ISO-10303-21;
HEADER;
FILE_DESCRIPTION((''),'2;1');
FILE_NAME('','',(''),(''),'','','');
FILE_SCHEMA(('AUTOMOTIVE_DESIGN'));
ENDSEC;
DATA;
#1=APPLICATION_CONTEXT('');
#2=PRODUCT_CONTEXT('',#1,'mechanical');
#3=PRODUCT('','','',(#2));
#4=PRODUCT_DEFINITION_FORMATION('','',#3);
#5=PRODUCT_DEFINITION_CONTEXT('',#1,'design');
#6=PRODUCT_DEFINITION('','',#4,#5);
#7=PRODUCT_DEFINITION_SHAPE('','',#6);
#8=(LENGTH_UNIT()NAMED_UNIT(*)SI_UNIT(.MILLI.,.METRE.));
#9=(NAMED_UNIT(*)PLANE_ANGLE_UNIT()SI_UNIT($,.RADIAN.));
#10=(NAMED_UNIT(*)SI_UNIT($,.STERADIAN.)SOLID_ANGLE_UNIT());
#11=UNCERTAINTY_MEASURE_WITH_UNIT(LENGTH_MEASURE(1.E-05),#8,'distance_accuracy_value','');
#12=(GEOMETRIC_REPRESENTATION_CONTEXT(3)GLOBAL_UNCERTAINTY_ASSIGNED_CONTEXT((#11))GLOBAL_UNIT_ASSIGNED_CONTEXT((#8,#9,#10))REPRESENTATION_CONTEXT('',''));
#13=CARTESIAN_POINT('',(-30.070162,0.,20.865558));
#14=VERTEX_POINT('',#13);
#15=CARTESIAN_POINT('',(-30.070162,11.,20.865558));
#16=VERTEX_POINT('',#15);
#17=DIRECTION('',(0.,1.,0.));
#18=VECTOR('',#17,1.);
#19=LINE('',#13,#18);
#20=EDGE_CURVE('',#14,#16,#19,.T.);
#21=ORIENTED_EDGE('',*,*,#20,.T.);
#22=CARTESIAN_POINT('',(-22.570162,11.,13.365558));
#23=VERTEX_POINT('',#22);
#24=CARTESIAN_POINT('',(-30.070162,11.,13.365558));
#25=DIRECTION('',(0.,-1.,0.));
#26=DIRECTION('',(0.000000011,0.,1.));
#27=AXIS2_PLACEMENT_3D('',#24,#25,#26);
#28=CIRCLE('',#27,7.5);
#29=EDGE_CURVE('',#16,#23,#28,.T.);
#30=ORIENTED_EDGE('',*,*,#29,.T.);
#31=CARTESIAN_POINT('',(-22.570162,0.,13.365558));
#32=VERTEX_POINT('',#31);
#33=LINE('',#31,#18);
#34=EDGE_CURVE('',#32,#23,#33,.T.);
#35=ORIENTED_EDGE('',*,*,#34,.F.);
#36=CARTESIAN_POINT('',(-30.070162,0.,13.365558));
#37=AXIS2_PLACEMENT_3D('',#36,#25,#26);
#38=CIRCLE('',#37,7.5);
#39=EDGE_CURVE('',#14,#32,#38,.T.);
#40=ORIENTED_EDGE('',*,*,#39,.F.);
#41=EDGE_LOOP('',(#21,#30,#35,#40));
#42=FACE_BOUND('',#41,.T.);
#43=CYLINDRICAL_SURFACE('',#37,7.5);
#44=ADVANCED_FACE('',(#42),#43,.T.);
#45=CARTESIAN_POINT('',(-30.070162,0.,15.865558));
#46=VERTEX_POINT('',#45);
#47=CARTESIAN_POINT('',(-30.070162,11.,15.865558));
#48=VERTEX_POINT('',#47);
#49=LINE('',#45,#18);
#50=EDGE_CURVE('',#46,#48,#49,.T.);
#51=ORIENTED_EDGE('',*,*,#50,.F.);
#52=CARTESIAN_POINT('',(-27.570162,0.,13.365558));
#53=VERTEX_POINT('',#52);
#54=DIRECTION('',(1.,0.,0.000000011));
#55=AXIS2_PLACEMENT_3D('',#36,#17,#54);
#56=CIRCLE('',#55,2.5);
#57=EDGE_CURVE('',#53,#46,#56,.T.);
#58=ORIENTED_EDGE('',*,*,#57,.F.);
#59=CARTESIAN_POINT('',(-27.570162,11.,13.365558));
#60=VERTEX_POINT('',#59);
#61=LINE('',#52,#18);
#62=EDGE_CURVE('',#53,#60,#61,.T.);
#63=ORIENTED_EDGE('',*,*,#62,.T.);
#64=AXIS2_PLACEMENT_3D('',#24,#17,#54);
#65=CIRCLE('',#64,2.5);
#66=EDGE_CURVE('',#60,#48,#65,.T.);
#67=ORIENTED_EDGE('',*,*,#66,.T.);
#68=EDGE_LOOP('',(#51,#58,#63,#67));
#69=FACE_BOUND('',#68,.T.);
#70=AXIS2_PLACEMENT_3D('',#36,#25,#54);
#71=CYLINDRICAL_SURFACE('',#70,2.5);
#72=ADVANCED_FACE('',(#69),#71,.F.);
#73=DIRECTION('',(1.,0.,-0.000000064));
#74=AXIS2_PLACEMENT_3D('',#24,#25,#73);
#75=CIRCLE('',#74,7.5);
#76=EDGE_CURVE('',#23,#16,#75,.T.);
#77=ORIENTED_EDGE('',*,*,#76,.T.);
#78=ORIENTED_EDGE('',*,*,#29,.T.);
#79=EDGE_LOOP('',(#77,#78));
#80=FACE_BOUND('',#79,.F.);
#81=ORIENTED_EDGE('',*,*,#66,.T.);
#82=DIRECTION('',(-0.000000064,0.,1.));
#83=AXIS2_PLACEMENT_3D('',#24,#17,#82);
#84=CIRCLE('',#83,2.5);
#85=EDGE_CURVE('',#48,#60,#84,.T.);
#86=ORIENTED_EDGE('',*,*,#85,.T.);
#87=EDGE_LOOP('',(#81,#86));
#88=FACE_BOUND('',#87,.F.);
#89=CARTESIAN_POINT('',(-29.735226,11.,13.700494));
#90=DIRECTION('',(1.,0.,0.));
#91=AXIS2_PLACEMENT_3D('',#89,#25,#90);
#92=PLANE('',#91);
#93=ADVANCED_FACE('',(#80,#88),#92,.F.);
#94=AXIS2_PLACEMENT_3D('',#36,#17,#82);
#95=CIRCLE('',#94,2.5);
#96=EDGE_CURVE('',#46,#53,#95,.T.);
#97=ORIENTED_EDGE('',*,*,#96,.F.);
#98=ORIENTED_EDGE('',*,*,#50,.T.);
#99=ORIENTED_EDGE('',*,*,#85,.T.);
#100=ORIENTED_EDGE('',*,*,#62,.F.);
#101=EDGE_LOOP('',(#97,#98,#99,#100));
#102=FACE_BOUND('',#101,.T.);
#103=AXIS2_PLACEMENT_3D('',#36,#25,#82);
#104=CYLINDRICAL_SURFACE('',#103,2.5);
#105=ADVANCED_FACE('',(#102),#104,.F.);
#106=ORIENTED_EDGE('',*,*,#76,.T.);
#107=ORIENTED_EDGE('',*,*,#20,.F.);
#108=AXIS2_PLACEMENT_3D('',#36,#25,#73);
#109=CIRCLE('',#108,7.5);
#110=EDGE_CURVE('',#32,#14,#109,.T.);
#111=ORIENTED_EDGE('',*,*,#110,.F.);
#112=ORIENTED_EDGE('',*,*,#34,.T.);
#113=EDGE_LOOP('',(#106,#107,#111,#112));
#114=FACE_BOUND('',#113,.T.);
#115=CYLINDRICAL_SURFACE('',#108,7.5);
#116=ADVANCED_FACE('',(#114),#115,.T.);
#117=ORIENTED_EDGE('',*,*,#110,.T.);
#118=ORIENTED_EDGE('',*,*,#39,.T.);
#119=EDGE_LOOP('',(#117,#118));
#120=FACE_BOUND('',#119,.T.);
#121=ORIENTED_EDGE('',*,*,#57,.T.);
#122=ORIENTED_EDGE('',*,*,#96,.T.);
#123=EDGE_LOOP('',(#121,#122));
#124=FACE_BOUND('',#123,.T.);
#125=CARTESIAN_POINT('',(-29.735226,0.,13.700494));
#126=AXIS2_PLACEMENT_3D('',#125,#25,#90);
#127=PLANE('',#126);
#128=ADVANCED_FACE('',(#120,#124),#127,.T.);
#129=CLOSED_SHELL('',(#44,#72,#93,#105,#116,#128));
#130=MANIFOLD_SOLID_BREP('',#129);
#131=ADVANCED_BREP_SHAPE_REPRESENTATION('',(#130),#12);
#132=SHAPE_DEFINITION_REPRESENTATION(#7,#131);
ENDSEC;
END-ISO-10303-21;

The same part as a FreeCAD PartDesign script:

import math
import FreeCAD as App
import Part
import Sketcher
Q = App.Units.Quantity

doc = App.newDocument("Part")
body = doc.addObject("PartDesign::Body", "Body")

sketch1 = doc.addObject("Sketcher::SketchObject", "Sketch")
body.addObject(sketch1)
sketch1.AttachmentSupport = (doc.XZ_Plane, [""])
sketch1.MapMode = "FlatFace"
sketch1.addGeometry(Part.ArcOfCircle(Part.Circle(App.Vector(-30, 125, 0), App.Vector(0, 0, 1), 79), math.radians(-98.07), math.radians(-90)), False)
sketch1.addGeometry(Part.ArcOfCircle(Part.Circle(App.Vector(-30, 13, 0), App.Vector(0, 0, 1), 36), math.radians(108), math.radians(432)), False)
sketch1.addGeometry(Part.ArcOfCircle(Part.Circle(App.Vector(-30, 125, 0), App.Vector(0, 0, 1), 79), math.radians(-90), math.radians(-81.93)), False)
sketch1.addGeometry(Part.ArcOfCircle(Part.Circle(App.Vector(-30, 13, 0), App.Vector(0, 0, 1), 7), math.radians(0), math.radians(90)), False)
sketch1.addGeometry(Part.ArcOfCircle(Part.Circle(App.Vector(-30, 13, 0), App.Vector(0, 0, 1), 8), math.radians(90), math.radians(360)), False)
sketch1.addConstraint(Sketcher.Constraint("Coincident", 0, 1, 1, 1))
sketch1.addConstraint(Sketcher.Constraint("Coincident", 1, 2, 2, 2))
sketch1.addConstraint(Sketcher.Constraint("Tangent", 2, 1, 0, 2))
sketch1.addConstraint(Sketcher.Constraint("Tangent", 3, 1, 4, 2))
sketch1.addConstraint(Sketcher.Constraint("Coincident", 4, 1, 3, 2))
sketch1.addConstraint(Sketcher.Constraint("Coincident", 3, 3, 1, 3))
sketch1.addConstraint(Sketcher.Constraint("Equal", 0, 2))
sketch1.addConstraint(Sketcher.Constraint("Horizontal", 0, 1, 1, 2))
sketch1.addConstraint(Sketcher.Constraint("Horizontal", 4, 3, 3, 1))
sketch1.addConstraint(Sketcher.Constraint("Vertical", 4, 3, 2, 1))
sketch1.addConstraint(Sketcher.Constraint("Vertical", 2, 1, 4, 1))
sketch1.addConstraint(Sketcher.Constraint("Radius", 3, Q("7.5 mm")))
sketch1.addConstraint(Sketcher.Constraint("Radius", 0, Q("79.000024 mm")))
sketch1.addConstraint(Sketcher.Constraint("Radius", 1, Q("35.565326 mm")))
sketch1.addConstraint(Sketcher.Constraint("DistanceX", 0, 3, -1, 1, Q("30.070161 mm")))
sketch1.addConstraint(Sketcher.Constraint("DistanceY", -1, 1, 1, 3, Q("13.365558 mm")))
sketch1.addConstraint(Sketcher.Constraint("DistanceX", 0, 1, -1, 1, Q("41.166509 mm")))
pad1 = doc.addObject("PartDesign::Pad", "Pad")
body.addObject(pad1)
pad1.Profile = sketch1
pad1.Length = 8

sketch2 = doc.addObject("Sketcher::SketchObject", "Sketch001")
body.addObject(sketch2)
sketch2.AttachmentSupport = (doc.XZ_Plane, [""])
sketch2.MapMode = "FlatFace"
sketch2.addGeometry(Part.ArcOfCircle(Part.Circle(App.Vector(-28.6, 43.2, 0), App.Vector(0, 0, 1), 13.2), math.radians(96), math.radians(162)), False)
sketch2.addGeometry(Part.ArcOfCircle(Part.Circle(App.Vector(-30.1, 125.4, 0), App.Vector(0, 0, 1), 79), math.radians(-98.07), math.radians(-90)), False)
sketch2.addGeometry(Part.ArcOfCircle(Part.Circle(App.Vector(-30.1, 125.4, 0), App.Vector(0, 0, 1), 79), math.radians(-90), math.radians(-81.93)), False)
sketch2.addGeometry(Part.ArcOfCircle(Part.Circle(App.Vector(-31.6, 43.2, 0), App.Vector(0, 0, 1), 13.2), math.radians(18), math.radians(84)), False)
sketch2.addGeometry(Part.ArcOfCircle(Part.Circle(App.Vector(-30.1, 52.7, 0), App.Vector(0, 0, 1), 2), math.radians(90), math.radians(270)), False)
sketch2.addGeometry(Part.ArcOfCircle(Part.Circle(App.Vector(-30.1, 52.7, 0), App.Vector(0, 0, 1), 2), math.radians(0), math.radians(90)), False)
sketch2.addGeometry(Part.ArcOfCircle(Part.Circle(App.Vector(-30.1, 52.7, 0), App.Vector(0, 0, 1), 2), math.radians(-90), math.radians(0)), False)
sketch2.addConstraint(Sketcher.Constraint("Coincident", 0, 2, 1, 1))
sketch2.addConstraint(Sketcher.Constraint("Tangent", 1, 2, 2, 1))
sketch2.addConstraint(Sketcher.Constraint("Coincident", 2, 2, 3, 1))
sketch2.addConstraint(Sketcher.Constraint("Coincident", 3, 2, 0, 1))
sketch2.addConstraint(Sketcher.Constraint("Tangent", 4, 1, 5, 2))
sketch2.addConstraint(Sketcher.Constraint("Tangent", 5, 1, 6, 2))
sketch2.addConstraint(Sketcher.Constraint("Tangent", 6, 1, 4, 2))
sketch2.addConstraint(Sketcher.Constraint("Equal", 1, 2))
sketch2.addConstraint(Sketcher.Constraint("Equal", 0, 3))
sketch2.addConstraint(Sketcher.Constraint("Horizontal", 0, 3, 3, 3))
sketch2.addConstraint(Sketcher.Constraint("Horizontal", 0, 2, 2, 2))
sketch2.addConstraint(Sketcher.Constraint("Horizontal", 6, 3, 5, 1))
sketch2.addConstraint(Sketcher.Constraint("Vertical", 2, 3, 4, 3))
sketch2.addConstraint(Sketcher.Constraint("Vertical", 6, 3, 1, 2))
sketch2.addConstraint(Sketcher.Constraint("Vertical", 3, 2, 4, 1))
sketch2.addConstraint(Sketcher.Constraint("Vertical", 4, 1, 6, 1))
sketch2.addConstraint(Sketcher.Constraint("Radius", 4, Q("2 mm")))
sketch2.addConstraint(Sketcher.Constraint("Radius", 0, Q("13.211998 mm")))
sketch2.addConstraint(Sketcher.Constraint("Radius", 1, Q("79.000024 mm")))
sketch2.addConstraint(Sketcher.Constraint("DistanceX", 0, 3, -1, 1, Q("28.575601 mm")))
sketch2.addConstraint(Sketcher.Constraint("DistanceY", -1, 1, 3, 2, Q("56.279502 mm")))
sketch2.addConstraint(Sketcher.Constraint("DistanceY", -1, 1, 0, 3, Q("43.152309 mm")))
sketch2.addConstraint(Sketcher.Constraint("DistanceY", -1, 1, 4, 3, Q("52.721558 mm")))
sketch2.addConstraint(Sketcher.Constraint("DistanceX", 0, 2, -1, 1, Q("41.166509 mm")))
pad2 = doc.addObject("PartDesign::Pad", "Pad001")
body.addObject(pad2)
pad2.Profile = sketch2
pad2.Length = 3
body2 = doc.addObject("PartDesign::Body", "Body001")

sketch3 = doc.addObject("Sketcher::SketchObject", "Sketch002")
body2.addObject(sketch3)
sketch3.AttachmentSupport = (doc.getObject("XZ_Plane001"), [""])
sketch3.MapMode = "FlatFace"
sketch3.addGeometry(Part.ArcOfCircle(Part.Circle(App.Vector(-30.1, 13.4, 0), App.Vector(0, 0, 1), 7.5), math.radians(0), math.radians(90)), False)
sketch3.addGeometry(Part.ArcOfCircle(Part.Circle(App.Vector(-30.1, 13.4, 0), App.Vector(0, 0, 1), 7.5), math.radians(90), math.radians(360)), False)
sketch3.addGeometry(Part.ArcOfCircle(Part.Circle(App.Vector(-30.1, 13.4, 0), App.Vector(0, 0, 1), 2.5), math.radians(0), math.radians(90)), False)
sketch3.addGeometry(Part.ArcOfCircle(Part.Circle(App.Vector(-30.1, 13.4, 0), App.Vector(0, 0, 1), 2.5), math.radians(90), math.radians(360)), False)
sketch3.addConstraint(Sketcher.Constraint("Tangent", 0, 1, 1, 2))
sketch3.addConstraint(Sketcher.Constraint("Coincident", 1, 1, 0, 2))
sketch3.addConstraint(Sketcher.Constraint("Tangent", 2, 1, 3, 2))
sketch3.addConstraint(Sketcher.Constraint("Coincident", 3, 1, 2, 2))
sketch3.addConstraint(Sketcher.Constraint("Coincident", 2, 3, 0, 3))
sketch3.addConstraint(Sketcher.Constraint("Horizontal", 3, 3, 0, 1))
sketch3.addConstraint(Sketcher.Constraint("Horizontal", 0, 1, 2, 1))
sketch3.addConstraint(Sketcher.Constraint("Vertical", 3, 3, 1, 1))
sketch3.addConstraint(Sketcher.Constraint("Vertical", 1, 1, 3, 1))
sketch3.addConstraint(Sketcher.Constraint("Radius", 0, Q("7.5 mm")))
sketch3.addConstraint(Sketcher.Constraint("Radius", 2, Q("2.5 mm")))
sketch3.addConstraint(Sketcher.Constraint("DistanceX", 0, 3, -1, 1, Q("30.070162 mm")))
sketch3.addConstraint(Sketcher.Constraint("DistanceY", -1, 1, 0, 3, Q("13.365558 mm")))
pad3 = doc.addObject("PartDesign::Pad", "Pad002")
body2.addObject(pad3)
pad3.Profile = sketch3
pad3.Length = 11
pad3.Reversed = True
body.Visibility = False

doc.recompute()
